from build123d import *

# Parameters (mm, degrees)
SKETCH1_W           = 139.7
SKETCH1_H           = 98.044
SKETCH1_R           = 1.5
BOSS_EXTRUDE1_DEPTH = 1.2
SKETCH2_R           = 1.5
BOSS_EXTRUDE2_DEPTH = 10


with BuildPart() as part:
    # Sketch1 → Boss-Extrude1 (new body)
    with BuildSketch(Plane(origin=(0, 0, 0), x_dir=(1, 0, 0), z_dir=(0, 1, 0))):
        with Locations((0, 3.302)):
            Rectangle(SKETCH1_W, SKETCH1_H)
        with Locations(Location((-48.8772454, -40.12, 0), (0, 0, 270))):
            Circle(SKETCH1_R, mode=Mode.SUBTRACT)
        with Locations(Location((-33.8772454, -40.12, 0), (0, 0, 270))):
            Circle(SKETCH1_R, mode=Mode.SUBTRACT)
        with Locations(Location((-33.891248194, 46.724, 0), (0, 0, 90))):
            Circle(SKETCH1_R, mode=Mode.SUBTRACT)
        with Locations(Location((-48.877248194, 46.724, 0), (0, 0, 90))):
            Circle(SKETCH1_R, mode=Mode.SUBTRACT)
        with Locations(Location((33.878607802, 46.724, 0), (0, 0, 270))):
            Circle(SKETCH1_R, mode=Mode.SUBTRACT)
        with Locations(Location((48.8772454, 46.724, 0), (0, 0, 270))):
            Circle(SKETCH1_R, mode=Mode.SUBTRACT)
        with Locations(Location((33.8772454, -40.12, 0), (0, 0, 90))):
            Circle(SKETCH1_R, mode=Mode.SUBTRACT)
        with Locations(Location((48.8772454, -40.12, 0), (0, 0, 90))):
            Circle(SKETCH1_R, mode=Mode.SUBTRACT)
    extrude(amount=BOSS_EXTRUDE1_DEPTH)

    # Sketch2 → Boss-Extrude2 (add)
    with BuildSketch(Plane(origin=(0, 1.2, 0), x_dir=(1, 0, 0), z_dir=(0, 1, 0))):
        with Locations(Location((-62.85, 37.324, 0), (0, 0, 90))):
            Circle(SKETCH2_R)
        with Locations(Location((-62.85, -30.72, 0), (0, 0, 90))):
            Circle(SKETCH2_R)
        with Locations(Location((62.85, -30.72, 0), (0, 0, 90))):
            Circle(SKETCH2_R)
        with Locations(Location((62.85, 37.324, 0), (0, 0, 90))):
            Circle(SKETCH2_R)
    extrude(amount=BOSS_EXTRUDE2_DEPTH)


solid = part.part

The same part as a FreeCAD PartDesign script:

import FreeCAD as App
import Part
import Sketcher
from FreeCAD import Vector
Q = App.Units.Quantity


def add_polygon(sketch, points):
    """Adds a closed chain of lines whose ends are joined by coincident constraints."""
    first, n = sketch.GeometryCount, len(points)
    for a, b in zip(points, points[1:] + points[:1]):
        sketch.addGeometry(Part.LineSegment(App.Vector(*a, 0), App.Vector(*b, 0)), False)
    for i in range(n):
        sketch.addConstraint(Sketcher.Constraint("Coincident", first + i, 2, first + (i + 1) % n, 1))

doc = App.newDocument("Part")
params = doc.addObject("Spreadsheet::Sheet", "Params")
for row, (alias, value) in enumerate([
    ("sketch1_diameter", "3 mm"),
    ("sketch1_width", "139.7 mm"),
    ("pad1_length", "1.2 mm"),
    ("sketch2_diameter", "3 mm"),
    ("pad2_length", "10 mm"),
], start=1):
    params.set(f"A{row}", alias)
    params.set(f"B{row}", "=" + value)
    params.setAlias(f"B{row}", alias)

body = doc.addObject("PartDesign::Body", "Body")

sketch1 = body.newObject("Sketcher::SketchObject", "Sketch")
sketch1.AttachmentSupport = (doc.getObject("XZ_Plane"), [""])
sketch1.MapMode = "FlatFace"
add_polygon(sketch1, [(-69.8, -52.3), (-69.8, 45.7), (69.8, 45.7), (69.8, -52.3)])
sketch1.addGeometry(Part.Circle(Vector(-48.9, 40.1, 0), Vector(0, 0, 1), 1.5), False)
sketch1.addGeometry(Part.Circle(Vector(-33.9, 40.1, 0), Vector(0, 0, 1), 1.5), False)
sketch1.addGeometry(Part.Circle(Vector(33.9, 40.1, 0), Vector(0, 0, 1), 1.5), False)
sketch1.addGeometry(Part.Circle(Vector(48.9, 40.1, 0), Vector(0, 0, 1), 1.5), False)
sketch1.addGeometry(Part.Circle(Vector(-48.9, -46.7, 0), Vector(0, 0, 1), 1.5), False)
sketch1.addGeometry(Part.Circle(Vector(-33.9, -46.7, 0), Vector(0, 0, 1), 1.5), False)
sketch1.addGeometry(Part.Circle(Vector(33.9, -46.7, 0), Vector(0, 0, 1), 1.5), False)
sketch1.addGeometry(Part.Circle(Vector(48.9, -46.7, 0), Vector(0, 0, 1), 1.5), False)
sketch1.addConstraint(Sketcher.Constraint("Vertical", 0))
sketch1.addConstraint(Sketcher.Constraint("Horizontal", 1))
sketch1.addConstraint(Sketcher.Constraint("Vertical", 2))
sketch1.addConstraint(Sketcher.Constraint("Horizontal", 3))
sketch1.addConstraint(Sketcher.Constraint("Equal", 4, 5))
sketch1.addConstraint(Sketcher.Constraint("Equal", 5, 6))
sketch1.addConstraint(Sketcher.Constraint("Equal", 6, 7))
sketch1.addConstraint(Sketcher.Constraint("Equal", 7, 8))
sketch1.addConstraint(Sketcher.Constraint("Equal", 8, 9))
sketch1.addConstraint(Sketcher.Constraint("Equal", 9, 10))
sketch1.addConstraint(Sketcher.Constraint("Equal", 10, 11))
sketch1.addConstraint(Sketcher.Constraint("Symmetric", 5, 3, 6, 3, -2))
sketch1.addConstraint(Sketcher.Constraint("Symmetric", 4, 3, 7, 3, -2))
sketch1.addConstraint(Sketcher.Constraint("Symmetric", 8, 3, 11, 3, -2))
sketch1.addConstraint(Sketcher.Constraint("Horizontal", 4, 3, 5, 3))
sketch1.addConstraint(Sketcher.Constraint("Horizontal", 8, 3, 9, 3))
sketch1.addConstraint(Sketcher.Constraint("Horizontal", 9, 3, 10, 3))
sketch1.addConstraint(Sketcher.Constraint("Vertical", 7, 3, 11, 3))
sketch1.addConstraint(Sketcher.Constraint("Diameter", 4, Q("3 mm")))
sketch1.addConstraint(Sketcher.Constraint("DistanceX", 1, 1, 1, 2, Q("139.7 mm")))
sketch1.addConstraint(Sketcher.Constraint("DistanceX", 4, 3, 5, 3, Q("15 mm")))
sketch1.addConstraint(Sketcher.Constraint("DistanceY", 4, 3, 0, 2, Q("5.6 mm")))
sketch1.addConstraint(Sketcher.Constraint("DistanceY", 2, 2, 11, 3, Q("5.6 mm")))
sketch1.addConstraint(Sketcher.Constraint("DistanceY", 0, 1, 0, 2, Q("98.044 mm")))
sketch1.addConstraint(Sketcher.Constraint("DistanceY", -1, 1, 4, 3, Q("40.12 mm")))
sketch1.addConstraint(Sketcher.Constraint("DistanceX", 0, 2, -1, 1, Q("69.85 mm")))
sketch1.addConstraint(Sketcher.Constraint("DistanceX", 8, 3, 9, 3, Q("14.986 mm")))
sketch1.addConstraint(Sketcher.Constraint("DistanceX", 8, 3, -1, 1, Q("48.877248 mm")))
sketch1.addConstraint(Sketcher.Constraint("DistanceX", -1, 1, 10, 3, Q("33.878608 mm")))
sketch1.setExpression("Constraints[22]", "Params.sketch1_diameter")
sketch1.setExpression("Constraints[23]", "Params.sketch1_width")
pad1 = body.newObject("PartDesign::Pad", "Pad")
pad1.Profile = sketch1
pad1.setExpression("Length", "Params.pad1_length")
pad1.Reversed = True

sketch2 = body.newObject("Sketcher::SketchObject", "Sketch001")
sketch2.AttachmentSupport = (doc.getObject("XZ_Plane"), [""])
sketch2.MapMode = "FlatFace"
sketch2.AttachmentOffset = App.Placement(Vector(0, 0, -1.2), App.Rotation())
sketch2.addGeometry(Part.Circle(Vector(-62.9, -37.3, 0), Vector(0, 0, 1), 1.5), False)
sketch2.addGeometry(Part.Circle(Vector(-62.9, 30.7, 0), Vector(0, 0, 1), 1.5), False)
sketch2.addGeometry(Part.Circle(Vector(62.9, 30.7, 0), Vector(0, 0, 1), 1.5), False)
sketch2.addGeometry(Part.Circle(Vector(62.9, -37.3, 0), Vector(0, 0, 1), 1.5), False)
sketch2.addConstraint(Sketcher.Constraint("Equal", 0, 1))
sketch2.addConstraint(Sketcher.Constraint("Equal", 1, 2))
sketch2.addConstraint(Sketcher.Constraint("Equal", 2, 3))
sketch2.addConstraint(Sketcher.Constraint("Symmetric", 1, 3, 2, 3, -2))
sketch2.addConstraint(Sketcher.Constraint("Symmetric", 0, 3, 3, 3, -2))
sketch2.addConstraint(Sketcher.Constraint("Vertical", 0, 3, 1, 3))
sketch2.addConstraint(Sketcher.Constraint("Diameter", 0, Q("3 mm")))
sketch2.addConstraint(Sketcher.Constraint("DistanceX", 1, 3, 2, 3, Q("125.7 mm")))
sketch2.addConstraint(Sketcher.Constraint("DistanceY", -1, 1, 1, 3, Q("30.72 mm")))
sketch2.addConstraint(Sketcher.Constraint("DistanceY", 0, 3, -1, 1, Q("37.324 mm")))
sketch2.setExpression("Constraints[6]", "Params.sketch2_diameter")
pad2 = body.newObject("PartDesign::Pad", "Pad001")
pad2.Profile = sketch2
pad2.setExpression("Length", "Params.pad2_length")
pad2.Reversed = True

doc.recompute()
